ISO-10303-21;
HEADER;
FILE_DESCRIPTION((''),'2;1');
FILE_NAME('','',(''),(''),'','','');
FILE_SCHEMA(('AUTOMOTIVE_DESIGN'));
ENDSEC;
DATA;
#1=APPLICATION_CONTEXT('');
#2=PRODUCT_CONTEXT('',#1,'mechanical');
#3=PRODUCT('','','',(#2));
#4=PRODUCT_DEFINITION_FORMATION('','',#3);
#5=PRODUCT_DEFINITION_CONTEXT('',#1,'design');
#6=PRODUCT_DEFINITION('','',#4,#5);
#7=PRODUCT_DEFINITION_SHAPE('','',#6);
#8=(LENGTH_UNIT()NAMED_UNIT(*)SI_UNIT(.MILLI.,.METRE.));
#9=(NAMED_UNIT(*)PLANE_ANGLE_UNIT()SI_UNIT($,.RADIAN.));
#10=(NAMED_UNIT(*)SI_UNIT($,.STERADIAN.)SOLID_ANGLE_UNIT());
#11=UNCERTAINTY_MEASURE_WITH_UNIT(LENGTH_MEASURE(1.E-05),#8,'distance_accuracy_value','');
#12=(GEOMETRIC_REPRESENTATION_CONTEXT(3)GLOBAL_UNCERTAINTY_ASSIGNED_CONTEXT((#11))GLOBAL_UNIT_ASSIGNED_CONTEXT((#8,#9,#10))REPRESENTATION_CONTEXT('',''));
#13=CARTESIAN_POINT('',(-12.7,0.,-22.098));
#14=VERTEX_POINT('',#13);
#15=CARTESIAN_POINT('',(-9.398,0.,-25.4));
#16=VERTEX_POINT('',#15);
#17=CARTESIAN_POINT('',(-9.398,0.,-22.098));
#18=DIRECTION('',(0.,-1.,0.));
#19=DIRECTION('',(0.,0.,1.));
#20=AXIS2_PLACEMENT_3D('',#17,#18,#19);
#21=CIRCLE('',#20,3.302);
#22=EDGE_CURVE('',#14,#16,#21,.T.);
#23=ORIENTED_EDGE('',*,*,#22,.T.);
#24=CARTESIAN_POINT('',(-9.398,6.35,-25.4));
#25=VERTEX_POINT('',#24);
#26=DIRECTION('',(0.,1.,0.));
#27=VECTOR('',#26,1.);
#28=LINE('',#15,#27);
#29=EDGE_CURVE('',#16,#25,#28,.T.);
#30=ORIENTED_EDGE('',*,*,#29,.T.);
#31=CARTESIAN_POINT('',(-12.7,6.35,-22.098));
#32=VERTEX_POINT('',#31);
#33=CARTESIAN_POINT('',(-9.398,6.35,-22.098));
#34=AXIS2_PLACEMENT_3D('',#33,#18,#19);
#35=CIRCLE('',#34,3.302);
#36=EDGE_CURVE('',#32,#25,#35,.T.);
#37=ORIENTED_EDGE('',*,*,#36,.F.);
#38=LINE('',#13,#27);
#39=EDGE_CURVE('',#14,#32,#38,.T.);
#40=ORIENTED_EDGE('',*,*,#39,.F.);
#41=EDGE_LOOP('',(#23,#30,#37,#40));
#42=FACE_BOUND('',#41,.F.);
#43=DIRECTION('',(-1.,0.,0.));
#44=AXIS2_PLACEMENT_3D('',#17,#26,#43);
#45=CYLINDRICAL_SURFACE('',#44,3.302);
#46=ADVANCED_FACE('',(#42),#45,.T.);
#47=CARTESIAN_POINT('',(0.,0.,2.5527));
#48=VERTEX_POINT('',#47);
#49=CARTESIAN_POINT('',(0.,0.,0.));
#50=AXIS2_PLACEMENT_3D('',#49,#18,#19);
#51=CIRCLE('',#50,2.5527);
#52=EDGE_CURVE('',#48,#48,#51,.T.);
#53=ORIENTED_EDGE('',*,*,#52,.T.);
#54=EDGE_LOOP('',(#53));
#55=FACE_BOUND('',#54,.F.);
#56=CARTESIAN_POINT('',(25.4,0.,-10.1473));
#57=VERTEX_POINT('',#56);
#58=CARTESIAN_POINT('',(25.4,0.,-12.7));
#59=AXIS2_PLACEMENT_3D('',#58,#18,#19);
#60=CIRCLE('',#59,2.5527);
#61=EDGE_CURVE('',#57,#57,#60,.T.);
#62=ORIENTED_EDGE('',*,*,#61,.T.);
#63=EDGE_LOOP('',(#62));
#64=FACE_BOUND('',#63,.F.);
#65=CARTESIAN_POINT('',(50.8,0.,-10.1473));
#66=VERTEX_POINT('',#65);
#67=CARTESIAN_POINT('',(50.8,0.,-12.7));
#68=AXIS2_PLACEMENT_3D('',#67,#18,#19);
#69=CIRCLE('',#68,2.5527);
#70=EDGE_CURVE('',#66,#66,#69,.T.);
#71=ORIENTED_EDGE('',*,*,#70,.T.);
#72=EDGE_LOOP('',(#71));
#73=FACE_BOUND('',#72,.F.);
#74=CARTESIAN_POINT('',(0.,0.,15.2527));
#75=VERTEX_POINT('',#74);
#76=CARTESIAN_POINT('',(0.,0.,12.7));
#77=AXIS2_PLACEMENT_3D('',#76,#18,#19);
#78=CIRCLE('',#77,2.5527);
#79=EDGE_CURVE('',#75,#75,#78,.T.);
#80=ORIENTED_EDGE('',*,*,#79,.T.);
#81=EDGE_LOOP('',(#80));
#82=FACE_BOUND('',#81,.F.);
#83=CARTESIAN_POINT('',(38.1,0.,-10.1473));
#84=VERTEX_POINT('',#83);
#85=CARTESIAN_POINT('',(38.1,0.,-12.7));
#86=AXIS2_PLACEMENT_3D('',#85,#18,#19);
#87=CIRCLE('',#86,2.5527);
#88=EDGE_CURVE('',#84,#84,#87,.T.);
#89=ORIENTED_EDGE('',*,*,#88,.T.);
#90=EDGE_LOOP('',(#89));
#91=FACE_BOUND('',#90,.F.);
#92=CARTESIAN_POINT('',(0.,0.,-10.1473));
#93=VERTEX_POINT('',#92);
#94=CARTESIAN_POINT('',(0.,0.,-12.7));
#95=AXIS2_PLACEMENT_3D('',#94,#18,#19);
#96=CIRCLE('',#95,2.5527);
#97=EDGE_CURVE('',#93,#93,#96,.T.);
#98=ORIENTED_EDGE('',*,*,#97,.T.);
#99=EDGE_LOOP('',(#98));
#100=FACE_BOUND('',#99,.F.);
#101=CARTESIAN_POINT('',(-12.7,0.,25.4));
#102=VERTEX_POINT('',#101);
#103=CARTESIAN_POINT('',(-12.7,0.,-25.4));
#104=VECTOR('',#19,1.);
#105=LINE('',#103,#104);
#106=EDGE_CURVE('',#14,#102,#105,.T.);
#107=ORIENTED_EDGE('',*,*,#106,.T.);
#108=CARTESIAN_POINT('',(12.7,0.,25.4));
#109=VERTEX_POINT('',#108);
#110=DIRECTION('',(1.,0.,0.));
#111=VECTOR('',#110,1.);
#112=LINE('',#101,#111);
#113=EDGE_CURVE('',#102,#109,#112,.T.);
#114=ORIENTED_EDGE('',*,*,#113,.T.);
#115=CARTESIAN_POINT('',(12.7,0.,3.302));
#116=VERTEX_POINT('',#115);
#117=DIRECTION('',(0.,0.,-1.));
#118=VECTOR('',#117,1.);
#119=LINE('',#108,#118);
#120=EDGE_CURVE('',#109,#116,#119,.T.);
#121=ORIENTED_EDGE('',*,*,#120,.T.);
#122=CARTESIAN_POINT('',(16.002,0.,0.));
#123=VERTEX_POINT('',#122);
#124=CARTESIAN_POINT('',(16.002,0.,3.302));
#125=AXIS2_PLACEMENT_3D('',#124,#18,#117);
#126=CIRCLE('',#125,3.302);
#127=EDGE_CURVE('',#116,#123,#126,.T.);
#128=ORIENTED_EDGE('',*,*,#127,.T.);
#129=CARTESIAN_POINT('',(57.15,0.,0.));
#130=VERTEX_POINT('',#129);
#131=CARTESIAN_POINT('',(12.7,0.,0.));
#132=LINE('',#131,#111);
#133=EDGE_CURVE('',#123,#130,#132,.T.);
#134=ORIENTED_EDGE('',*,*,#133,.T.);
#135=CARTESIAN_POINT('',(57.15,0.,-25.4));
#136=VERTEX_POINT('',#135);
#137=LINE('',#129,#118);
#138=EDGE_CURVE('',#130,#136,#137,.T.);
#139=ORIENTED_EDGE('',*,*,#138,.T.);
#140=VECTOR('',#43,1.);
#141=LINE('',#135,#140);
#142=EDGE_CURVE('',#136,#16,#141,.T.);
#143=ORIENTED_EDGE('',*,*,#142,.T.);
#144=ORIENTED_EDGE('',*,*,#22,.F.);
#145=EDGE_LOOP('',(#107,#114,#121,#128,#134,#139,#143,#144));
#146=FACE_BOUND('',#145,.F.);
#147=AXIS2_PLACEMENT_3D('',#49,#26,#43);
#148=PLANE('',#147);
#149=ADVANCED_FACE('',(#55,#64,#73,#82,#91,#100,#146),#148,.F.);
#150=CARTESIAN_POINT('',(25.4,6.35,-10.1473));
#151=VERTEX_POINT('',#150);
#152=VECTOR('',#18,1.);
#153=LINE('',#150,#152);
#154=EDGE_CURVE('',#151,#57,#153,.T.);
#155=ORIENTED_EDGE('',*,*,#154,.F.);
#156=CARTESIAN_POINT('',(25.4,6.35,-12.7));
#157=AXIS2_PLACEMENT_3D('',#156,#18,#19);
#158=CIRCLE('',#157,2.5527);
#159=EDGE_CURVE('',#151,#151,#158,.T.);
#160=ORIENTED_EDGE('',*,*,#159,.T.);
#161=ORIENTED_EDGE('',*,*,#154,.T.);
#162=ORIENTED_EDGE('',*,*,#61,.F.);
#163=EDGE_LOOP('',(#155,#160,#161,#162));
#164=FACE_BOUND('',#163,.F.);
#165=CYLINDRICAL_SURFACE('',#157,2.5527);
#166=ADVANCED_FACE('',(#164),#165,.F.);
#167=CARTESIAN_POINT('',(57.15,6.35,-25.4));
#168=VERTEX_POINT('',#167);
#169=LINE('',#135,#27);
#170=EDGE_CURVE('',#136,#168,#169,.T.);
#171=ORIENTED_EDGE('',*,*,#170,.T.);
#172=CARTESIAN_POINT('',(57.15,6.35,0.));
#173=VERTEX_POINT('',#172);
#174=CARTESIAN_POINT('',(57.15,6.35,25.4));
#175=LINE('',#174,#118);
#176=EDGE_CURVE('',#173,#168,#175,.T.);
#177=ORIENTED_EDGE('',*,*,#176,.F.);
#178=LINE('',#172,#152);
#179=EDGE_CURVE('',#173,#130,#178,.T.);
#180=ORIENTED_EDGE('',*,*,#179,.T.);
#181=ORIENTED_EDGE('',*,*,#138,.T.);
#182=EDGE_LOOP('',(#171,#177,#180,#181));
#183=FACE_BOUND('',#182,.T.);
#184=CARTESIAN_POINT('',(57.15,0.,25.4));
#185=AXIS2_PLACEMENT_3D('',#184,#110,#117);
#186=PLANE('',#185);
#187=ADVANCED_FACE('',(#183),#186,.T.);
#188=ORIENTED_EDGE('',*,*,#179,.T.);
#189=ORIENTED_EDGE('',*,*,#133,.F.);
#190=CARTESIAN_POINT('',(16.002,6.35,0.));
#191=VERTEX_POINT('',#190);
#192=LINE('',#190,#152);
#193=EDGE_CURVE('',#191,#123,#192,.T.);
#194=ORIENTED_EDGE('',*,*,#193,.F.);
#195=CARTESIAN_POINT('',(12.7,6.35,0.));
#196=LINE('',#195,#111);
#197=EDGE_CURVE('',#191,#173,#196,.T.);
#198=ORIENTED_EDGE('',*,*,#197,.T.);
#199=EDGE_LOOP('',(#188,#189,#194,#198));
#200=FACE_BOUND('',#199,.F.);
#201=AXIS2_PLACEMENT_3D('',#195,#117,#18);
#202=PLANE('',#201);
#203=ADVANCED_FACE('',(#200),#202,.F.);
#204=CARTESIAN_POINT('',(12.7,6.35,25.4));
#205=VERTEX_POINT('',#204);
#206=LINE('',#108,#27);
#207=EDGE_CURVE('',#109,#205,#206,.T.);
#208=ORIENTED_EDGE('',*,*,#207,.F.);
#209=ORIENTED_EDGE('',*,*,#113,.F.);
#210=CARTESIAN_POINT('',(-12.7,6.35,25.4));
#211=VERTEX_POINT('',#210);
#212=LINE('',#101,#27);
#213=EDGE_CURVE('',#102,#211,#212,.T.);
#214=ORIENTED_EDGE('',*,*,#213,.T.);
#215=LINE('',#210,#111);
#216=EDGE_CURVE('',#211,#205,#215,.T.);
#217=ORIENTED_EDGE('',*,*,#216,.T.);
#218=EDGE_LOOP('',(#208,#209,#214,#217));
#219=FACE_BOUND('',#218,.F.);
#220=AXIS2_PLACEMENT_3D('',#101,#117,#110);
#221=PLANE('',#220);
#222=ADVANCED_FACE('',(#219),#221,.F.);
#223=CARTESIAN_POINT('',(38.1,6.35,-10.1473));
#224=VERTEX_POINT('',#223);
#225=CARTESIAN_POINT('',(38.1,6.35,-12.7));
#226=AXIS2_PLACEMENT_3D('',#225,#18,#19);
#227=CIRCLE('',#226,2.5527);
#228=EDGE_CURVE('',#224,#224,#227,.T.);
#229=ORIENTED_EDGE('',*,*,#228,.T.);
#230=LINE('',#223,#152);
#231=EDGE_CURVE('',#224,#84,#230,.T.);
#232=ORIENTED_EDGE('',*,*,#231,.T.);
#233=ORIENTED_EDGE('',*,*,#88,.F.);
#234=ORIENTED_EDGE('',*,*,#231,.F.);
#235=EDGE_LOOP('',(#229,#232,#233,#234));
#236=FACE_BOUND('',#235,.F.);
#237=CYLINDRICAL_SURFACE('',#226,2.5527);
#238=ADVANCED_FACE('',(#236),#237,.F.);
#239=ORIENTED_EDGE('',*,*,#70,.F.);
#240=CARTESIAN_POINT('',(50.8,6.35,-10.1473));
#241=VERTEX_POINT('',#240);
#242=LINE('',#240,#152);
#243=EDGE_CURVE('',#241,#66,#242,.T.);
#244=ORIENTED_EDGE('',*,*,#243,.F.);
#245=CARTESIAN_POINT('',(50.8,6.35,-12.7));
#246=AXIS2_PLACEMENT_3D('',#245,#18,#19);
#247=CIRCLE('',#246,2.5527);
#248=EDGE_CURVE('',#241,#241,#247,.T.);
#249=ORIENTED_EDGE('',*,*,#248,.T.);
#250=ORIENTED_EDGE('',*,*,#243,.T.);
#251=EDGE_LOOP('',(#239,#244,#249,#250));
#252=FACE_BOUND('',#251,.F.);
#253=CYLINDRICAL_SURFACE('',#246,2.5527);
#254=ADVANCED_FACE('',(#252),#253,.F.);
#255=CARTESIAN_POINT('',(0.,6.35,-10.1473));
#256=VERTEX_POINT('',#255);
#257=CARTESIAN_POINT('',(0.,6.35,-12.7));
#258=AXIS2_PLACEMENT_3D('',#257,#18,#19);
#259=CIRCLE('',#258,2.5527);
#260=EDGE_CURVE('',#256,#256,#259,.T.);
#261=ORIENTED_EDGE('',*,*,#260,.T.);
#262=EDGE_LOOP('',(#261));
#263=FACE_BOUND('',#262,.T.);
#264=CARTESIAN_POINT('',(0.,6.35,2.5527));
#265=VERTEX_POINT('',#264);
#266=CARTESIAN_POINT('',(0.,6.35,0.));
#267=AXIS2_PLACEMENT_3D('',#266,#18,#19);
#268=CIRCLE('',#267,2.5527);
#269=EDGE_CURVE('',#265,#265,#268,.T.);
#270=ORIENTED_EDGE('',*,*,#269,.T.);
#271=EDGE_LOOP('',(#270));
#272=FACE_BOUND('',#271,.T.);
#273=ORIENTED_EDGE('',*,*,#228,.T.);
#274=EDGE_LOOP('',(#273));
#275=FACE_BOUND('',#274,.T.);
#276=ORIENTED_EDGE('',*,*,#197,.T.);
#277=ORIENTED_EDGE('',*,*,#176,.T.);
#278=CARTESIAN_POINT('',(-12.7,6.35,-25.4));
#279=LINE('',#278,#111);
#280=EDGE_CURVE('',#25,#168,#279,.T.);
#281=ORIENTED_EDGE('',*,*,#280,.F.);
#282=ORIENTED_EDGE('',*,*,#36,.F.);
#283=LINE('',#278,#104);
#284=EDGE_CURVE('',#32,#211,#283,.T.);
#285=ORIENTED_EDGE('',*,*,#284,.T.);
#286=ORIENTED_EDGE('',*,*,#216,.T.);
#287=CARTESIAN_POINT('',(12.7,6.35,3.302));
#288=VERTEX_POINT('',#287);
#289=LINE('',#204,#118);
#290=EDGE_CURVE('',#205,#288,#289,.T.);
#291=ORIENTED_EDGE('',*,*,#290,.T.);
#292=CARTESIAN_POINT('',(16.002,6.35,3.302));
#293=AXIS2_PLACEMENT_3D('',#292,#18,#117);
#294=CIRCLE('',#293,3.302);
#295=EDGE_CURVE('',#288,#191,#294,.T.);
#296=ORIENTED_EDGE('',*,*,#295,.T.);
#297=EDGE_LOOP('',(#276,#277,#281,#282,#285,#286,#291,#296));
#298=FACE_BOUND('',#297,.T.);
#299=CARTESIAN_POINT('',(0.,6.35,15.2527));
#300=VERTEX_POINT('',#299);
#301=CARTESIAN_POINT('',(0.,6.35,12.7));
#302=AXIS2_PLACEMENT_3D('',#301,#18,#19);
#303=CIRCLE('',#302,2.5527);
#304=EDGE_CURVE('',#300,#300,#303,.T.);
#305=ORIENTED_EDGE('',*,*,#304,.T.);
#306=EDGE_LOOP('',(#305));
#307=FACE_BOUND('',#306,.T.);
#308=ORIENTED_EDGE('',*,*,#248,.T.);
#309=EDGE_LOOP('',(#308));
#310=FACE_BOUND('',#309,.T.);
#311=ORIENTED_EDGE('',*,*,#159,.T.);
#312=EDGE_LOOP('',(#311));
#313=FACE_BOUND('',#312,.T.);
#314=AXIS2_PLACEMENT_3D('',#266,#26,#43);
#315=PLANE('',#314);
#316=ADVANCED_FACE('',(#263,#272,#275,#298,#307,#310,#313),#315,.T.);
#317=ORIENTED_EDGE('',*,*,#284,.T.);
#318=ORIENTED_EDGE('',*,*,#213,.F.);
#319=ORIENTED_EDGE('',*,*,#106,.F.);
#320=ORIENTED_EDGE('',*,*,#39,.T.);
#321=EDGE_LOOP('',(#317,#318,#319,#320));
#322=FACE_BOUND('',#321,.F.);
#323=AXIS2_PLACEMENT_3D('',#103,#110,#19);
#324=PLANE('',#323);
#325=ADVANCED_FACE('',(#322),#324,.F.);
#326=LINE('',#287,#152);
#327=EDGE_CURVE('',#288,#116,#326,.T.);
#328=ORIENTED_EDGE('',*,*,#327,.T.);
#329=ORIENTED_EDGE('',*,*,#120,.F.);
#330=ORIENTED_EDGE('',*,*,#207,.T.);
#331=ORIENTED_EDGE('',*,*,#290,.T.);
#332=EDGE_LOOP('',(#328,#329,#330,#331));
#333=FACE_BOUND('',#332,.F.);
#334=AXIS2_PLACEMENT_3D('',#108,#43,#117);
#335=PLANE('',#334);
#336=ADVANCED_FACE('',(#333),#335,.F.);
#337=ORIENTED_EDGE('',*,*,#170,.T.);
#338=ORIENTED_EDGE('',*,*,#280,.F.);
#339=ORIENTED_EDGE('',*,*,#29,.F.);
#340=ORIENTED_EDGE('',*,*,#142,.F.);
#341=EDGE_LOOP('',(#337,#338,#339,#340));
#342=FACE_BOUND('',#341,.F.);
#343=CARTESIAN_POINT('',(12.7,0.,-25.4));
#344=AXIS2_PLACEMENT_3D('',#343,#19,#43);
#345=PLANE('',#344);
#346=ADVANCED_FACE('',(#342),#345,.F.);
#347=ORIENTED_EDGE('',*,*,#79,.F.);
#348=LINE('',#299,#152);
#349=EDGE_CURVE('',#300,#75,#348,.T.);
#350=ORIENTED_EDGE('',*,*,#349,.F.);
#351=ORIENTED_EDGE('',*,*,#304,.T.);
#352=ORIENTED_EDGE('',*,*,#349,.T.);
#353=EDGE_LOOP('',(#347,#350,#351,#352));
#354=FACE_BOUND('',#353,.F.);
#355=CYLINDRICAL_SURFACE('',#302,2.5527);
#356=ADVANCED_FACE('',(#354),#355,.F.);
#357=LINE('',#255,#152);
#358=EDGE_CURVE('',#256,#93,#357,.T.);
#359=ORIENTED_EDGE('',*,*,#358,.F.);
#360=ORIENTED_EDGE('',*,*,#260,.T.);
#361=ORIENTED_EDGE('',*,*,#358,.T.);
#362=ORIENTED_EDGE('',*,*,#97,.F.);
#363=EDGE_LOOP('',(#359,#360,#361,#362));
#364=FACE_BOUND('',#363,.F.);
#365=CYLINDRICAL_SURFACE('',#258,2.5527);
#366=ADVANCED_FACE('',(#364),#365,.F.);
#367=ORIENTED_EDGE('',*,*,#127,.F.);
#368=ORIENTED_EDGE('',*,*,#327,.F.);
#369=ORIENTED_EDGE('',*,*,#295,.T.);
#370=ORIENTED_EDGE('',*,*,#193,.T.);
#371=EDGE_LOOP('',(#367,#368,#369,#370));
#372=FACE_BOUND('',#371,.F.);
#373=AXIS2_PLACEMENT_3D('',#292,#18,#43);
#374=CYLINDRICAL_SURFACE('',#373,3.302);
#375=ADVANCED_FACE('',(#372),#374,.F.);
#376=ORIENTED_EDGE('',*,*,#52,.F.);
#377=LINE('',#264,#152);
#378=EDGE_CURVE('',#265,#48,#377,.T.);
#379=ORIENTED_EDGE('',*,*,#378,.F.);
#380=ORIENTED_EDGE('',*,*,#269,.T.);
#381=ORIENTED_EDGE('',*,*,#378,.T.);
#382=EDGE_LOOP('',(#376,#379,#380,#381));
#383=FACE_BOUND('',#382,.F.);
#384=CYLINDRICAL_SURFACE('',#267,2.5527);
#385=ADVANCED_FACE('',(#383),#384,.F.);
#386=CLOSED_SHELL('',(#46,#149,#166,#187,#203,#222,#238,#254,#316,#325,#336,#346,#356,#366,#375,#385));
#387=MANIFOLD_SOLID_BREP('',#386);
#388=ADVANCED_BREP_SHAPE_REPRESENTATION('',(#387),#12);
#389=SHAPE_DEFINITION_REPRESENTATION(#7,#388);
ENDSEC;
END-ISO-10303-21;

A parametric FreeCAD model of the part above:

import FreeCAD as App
import Part
import Sketcher

V = App.Vector
Q = App.Units.Quantity


def edges_at(feature, points):
    """Names of the edges that pass closest to the given points."""
    edges = feature.Shape.Edges
    near = lambda p: min(range(len(edges)), key=lambda i: edges[i].distToShape(Part.Vertex(*p))[0])
    return sorted({f"Edge{near(p) + 1}" for p in points})

doc = App.newDocument("Part")
params = doc.addObject("Spreadsheet::Sheet", "Params")
for row, (alias, value) in enumerate([
    ("sketch1_width", "1 in"),
    ("sketch1_height", "2 in"),
    ("pad1_length", "0.25 in"),
    ("sketch2_height", "1 in"),
    ("sketch2_width", "0.25 in"),
    ("pad2_length", "1.75 in"),
    ("sketch3_diameter", "0.201 in"),
    ("hole_diameter", "0.201 in"),
    ("fillet_radius", "0.13 in"),
], start=1):
    params.set(f"A{row}", alias)
    params.set(f"B{row}", "=" + value)
    params.setAlias(f"B{row}", alias)

body = doc.addObject("PartDesign::Body", "Body")

sketch1 = body.newObject("Sketcher::SketchObject", "Sketch")
sketch1.AttachmentSupport = (doc.getObject("XZ_Plane"), [""])
sketch1.MapMode = "FlatFace"
sketch1.addGeometry(Part.LineSegment(V(-13, -25, 0), V(-13, 25, 0)), False)
sketch1.addGeometry(Part.LineSegment(V(-13, 25, 0), V(13, 25, 0)), False)
sketch1.addGeometry(Part.LineSegment(V(13, 25, 0), V(13, -25, 0)), False)
sketch1.addGeometry(Part.LineSegment(V(13, -25, 0), V(-13, -25, 0)), False)
sketch1.addConstraint(Sketcher.Constraint("Coincident", 0, 2, 1, 1))
sketch1.addConstraint(Sketcher.Constraint("Coincident", 1, 2, 2, 1))
sketch1.addConstraint(Sketcher.Constraint("Coincident", 2, 2, 3, 1))
sketch1.addConstraint(Sketcher.Constraint("Coincident", 3, 2, 0, 1))
sketch1.addConstraint(Sketcher.Constraint("Vertical", 0))
sketch1.addConstraint(Sketcher.Constraint("Horizontal", 1))
sketch1.addConstraint(Sketcher.Constraint("Vertical", 2))
sketch1.addConstraint(Sketcher.Constraint("Horizontal", 3))
sketch1.addConstraint(Sketcher.Constraint("Symmetric", 0, 2, 2, 2, -1, 1))
sketch1.addConstraint(Sketcher.Constraint("DistanceX", 1, 1, 1, 2, Q("1 in")))
sketch1.addConstraint(Sketcher.Constraint("DistanceY", 0, 1, 0, 2, Q("2 in")))
sketch1.setExpression("Constraints[9]", "Params.sketch1_width")
sketch1.setExpression("Constraints[10]", "Params.sketch1_height")
pad1 = body.newObject("PartDesign::Pad", "Pad")
pad1.Profile = sketch1
pad1.setExpression("Length", "Params.pad1_length")
pad1.Reversed = True

sketch2 = body.newObject("Sketcher::SketchObject", "Sketch001")
sketch2.AttachmentSupport = (doc.getObject("YZ_Plane"), [""])
sketch2.MapMode = "FlatFace"
sketch2.AttachmentOffset = App.Placement(V(0, 0, 0.5 * 25.4), App.Rotation())
sketch2.addGeometry(Part.LineSegment(V(6, -25, 0), V(6, 0, 0)), False)
sketch2.addGeometry(Part.LineSegment(V(6, 0, 0), V(0, 0, 0)), False)
sketch2.addGeometry(Part.LineSegment(V(0, 0, 0), V(0, -25, 0)), False)
sketch2.addGeometry(Part.LineSegment(V(0, -25, 0), V(6, -25, 0)), False)
sketch2.addConstraint(Sketcher.Constraint("Coincident", 0, 2, 1, 1))
sketch2.addConstraint(Sketcher.Constraint("Coincident", 1, 2, 2, 1))
sketch2.addConstraint(Sketcher.Constraint("Coincident", 2, 2, 3, 1))
sketch2.addConstraint(Sketcher.Constraint("Coincident", 3, 2, 0, 1))
sketch2.addConstraint(Sketcher.Constraint("Vertical", 0))
sketch2.addConstraint(Sketcher.Constraint("Horizontal", 1))
sketch2.addConstraint(Sketcher.Constraint("Vertical", 2))
sketch2.addConstraint(Sketcher.Constraint("Horizontal", 3))
sketch2.addConstraint(Sketcher.Constraint("Coincident", 1, 2, -1, 1))
sketch2.addConstraint(Sketcher.Constraint("DistanceY", 0, 1, 0, 2, Q("1 in")))
sketch2.addConstraint(Sketcher.Constraint("DistanceX", 1, 2, 1, 1, Q("0.25 in")))
sketch2.setExpression("Constraints[9]", "Params.sketch2_height")
sketch2.setExpression("Constraints[10]", "Params.sketch2_width")
pad2 = body.newObject("PartDesign::Pad", "Pad001")
pad2.Profile = sketch2
pad2.setExpression("Length", "Params.pad2_length")

sketch3 = body.newObject("Sketcher::SketchObject", "Sketch002")
sketch3.AttachmentSupport = (doc.getObject("XZ_Plane"), [""])
sketch3.MapMode = "FlatFace"
sketch3.AttachmentOffset = App.Placement(V(0, 0, -0.25 * 25.4), App.Rotation())
sketch3.addGeometry(Part.Circle(V(0, 12.7, 0), V(0, 0, 1), 2.6), False)
sketch3.addGeometry(Part.Circle(V(0, 0, 0), V(0, 0, 1), 2.6), False)
sketch3.addGeometry(Part.Circle(V(0, -12.7, 0), V(0, 0, 1), 2.6), False)
sketch3.addGeometry(Part.Circle(V(25.4, -12.7, 0), V(0, 0, 1), 2.6), False)
sketch3.addGeometry(Part.Circle(V(38.1, -12.7, 0), V(0, 0, 1), 2.6), False)
sketch3.addGeometry(Part.Circle(V(50.8, -12.7, 0), V(0, 0, 1), 2.6), False)
sketch3.addConstraint(Sketcher.Constraint("Coincident", 1, 3, -1, 1))
sketch3.addConstraint(Sketcher.Constraint("Equal", 0, 1))
sketch3.addConstraint(Sketcher.Constraint("Equal", 1, 2))
sketch3.addConstraint(Sketcher.Constraint("Equal", 2, 3))
sketch3.addConstraint(Sketcher.Constraint("Equal", 3, 4))
sketch3.addConstraint(Sketcher.Constraint("Equal", 4, 5))
sketch3.addConstraint(Sketcher.Constraint("Symmetric", 0, 3, 2, 3, -1, 1))
sketch3.addConstraint(Sketcher.Constraint("PointOnObject", 0, 3, -2))
sketch3.addConstraint(Sketcher.Constraint("Horizontal", 2, 3, 3, 3))
sketch3.addConstraint(Sketcher.Constraint("Horizontal", 3, 3, 4, 3))
sketch3.addConstraint(Sketcher.Constraint("Horizontal", 4, 3, 5, 3))
sketch3.addConstraint(Sketcher.Constraint("Diameter", 0, Q("0.201 in")))
sketch3.addConstraint(Sketcher.Constraint("DistanceX", -1, 1, 3, 3, Q("1 in")))
sketch3.addConstraint(Sketcher.Constraint("DistanceX", -1, 1, 5, 3, Q("2 in")))
sketch3.addConstraint(Sketcher.Constraint("DistanceY", 2, 3, 0, 3, Q("1 in")))
sketch3.addConstraint(Sketcher.Constraint("DistanceX", -1, 1, 4, 3, Q("1.5 in")))
sketch3.setExpression("Constraints[11]", "Params.sketch3_diameter")
doc.recompute()
hole = body.newObject("PartDesign::Hole", "Hole")
hole.Profile = sketch3
hole.ThreadType = "None"
hole.setExpression("Diameter", "Params.hole_diameter")
hole.DepthType = "ThroughAll"
hole.Reversed = True
doc.recompute()

fillet = body.newObject("PartDesign::Fillet", "Fillet")
fillet.Base = (hole, edges_at(hole, [(12.7, 3.175, 0), (-12.7, 3.175, -25.4)]))
fillet.setExpression("Radius", "Params.fillet_radius")

doc.recompute()
